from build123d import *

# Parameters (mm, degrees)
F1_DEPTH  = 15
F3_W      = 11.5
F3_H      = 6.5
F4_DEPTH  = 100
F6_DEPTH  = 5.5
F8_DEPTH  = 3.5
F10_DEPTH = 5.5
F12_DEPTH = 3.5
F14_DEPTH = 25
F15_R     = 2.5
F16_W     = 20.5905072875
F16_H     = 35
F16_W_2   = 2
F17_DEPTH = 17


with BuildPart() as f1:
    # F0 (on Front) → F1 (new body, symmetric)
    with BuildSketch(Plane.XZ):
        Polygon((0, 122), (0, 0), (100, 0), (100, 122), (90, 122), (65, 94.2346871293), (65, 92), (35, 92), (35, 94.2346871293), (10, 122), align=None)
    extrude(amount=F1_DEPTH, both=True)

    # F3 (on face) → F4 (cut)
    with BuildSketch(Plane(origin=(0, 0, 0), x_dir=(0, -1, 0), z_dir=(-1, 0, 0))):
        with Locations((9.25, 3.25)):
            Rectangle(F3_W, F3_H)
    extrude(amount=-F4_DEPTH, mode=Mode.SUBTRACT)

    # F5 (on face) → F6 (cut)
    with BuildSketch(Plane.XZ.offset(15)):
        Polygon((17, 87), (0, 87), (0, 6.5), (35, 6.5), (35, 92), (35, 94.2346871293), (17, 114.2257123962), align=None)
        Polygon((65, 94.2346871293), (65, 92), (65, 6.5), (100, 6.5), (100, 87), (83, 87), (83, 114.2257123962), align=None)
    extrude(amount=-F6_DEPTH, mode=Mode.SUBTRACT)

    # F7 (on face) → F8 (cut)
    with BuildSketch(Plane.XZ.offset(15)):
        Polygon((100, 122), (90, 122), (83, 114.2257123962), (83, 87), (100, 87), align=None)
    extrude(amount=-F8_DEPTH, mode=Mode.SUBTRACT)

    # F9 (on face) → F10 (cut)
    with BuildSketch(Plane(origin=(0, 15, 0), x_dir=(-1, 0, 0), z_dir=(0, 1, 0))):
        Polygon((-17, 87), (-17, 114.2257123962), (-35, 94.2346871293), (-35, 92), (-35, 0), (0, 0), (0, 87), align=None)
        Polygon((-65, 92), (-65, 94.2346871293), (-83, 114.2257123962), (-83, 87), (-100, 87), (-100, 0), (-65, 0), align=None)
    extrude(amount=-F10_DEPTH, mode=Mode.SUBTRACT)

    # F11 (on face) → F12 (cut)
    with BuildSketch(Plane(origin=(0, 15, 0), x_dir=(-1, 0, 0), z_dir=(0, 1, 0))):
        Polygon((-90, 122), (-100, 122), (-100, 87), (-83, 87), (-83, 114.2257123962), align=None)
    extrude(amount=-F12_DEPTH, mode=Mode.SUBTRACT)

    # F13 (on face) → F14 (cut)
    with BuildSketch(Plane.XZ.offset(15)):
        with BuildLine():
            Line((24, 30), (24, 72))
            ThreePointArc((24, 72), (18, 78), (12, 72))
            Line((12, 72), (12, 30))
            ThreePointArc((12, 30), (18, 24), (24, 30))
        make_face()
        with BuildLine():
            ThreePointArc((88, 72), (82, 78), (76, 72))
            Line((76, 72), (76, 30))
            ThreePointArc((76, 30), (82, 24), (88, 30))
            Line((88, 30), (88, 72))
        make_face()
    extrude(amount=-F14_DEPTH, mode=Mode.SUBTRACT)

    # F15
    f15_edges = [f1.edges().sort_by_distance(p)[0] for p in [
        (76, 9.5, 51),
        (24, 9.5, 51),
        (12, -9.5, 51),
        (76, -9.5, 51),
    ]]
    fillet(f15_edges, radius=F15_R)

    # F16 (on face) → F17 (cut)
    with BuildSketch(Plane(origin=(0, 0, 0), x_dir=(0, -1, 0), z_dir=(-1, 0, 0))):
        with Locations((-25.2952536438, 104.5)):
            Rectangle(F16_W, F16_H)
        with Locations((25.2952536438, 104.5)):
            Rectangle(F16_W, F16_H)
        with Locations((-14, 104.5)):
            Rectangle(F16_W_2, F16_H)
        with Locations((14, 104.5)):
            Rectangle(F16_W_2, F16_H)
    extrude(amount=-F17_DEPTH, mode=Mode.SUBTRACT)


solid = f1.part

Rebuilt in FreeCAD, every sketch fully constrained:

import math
import FreeCAD as App
import Part
import Sketcher
Q = App.Units.Quantity


def edges_at(feature, points):
    """Names of the edges that pass closest to the given points."""
    edges = feature.Shape.Edges
    near = lambda p: min(range(len(edges)), key=lambda i: edges[i].distToShape(Part.Vertex(*p))[0])
    return sorted({f"Edge{near(p) + 1}" for p in points})

doc = App.newDocument("Part")
body = doc.addObject("PartDesign::Body", "Body")

sketch1 = body.newObject("Sketcher::SketchObject", "Sketch")
sketch1.AttachmentSupport = (doc.getObject("XZ_Plane"), [""])
sketch1.MapMode = "FlatFace"
sketch1.addGeometry(Part.LineSegment(App.Vector(0, 122, 0), App.Vector(0, 0, 0)), False)
sketch1.addGeometry(Part.LineSegment(App.Vector(0, 0, 0), App.Vector(100, 0, 0)), False)
sketch1.addGeometry(Part.LineSegment(App.Vector(100, 0, 0), App.Vector(100, 122, 0)), False)
sketch1.addGeometry(Part.LineSegment(App.Vector(100, 122, 0), App.Vector(90, 122, 0)), False)
sketch1.addGeometry(Part.LineSegment(App.Vector(90, 122, 0), App.Vector(65, 94.234687, 0)), False)
sketch1.addGeometry(Part.LineSegment(App.Vector(65, 94.234687, 0), App.Vector(65, 92, 0)), False)
sketch1.addGeometry(Part.LineSegment(App.Vector(65, 92, 0), App.Vector(35, 92, 0)), False)
sketch1.addGeometry(Part.LineSegment(App.Vector(35, 92, 0), App.Vector(35, 94.234687, 0)), False)
sketch1.addGeometry(Part.LineSegment(App.Vector(35, 94.234687, 0), App.Vector(10, 122, 0)), False)
sketch1.addGeometry(Part.LineSegment(App.Vector(10, 122, 0), App.Vector(0, 122, 0)), False)
sketch1.addConstraint(Sketcher.Constraint("Coincident", 0, 2, 1, 1))
sketch1.addConstraint(Sketcher.Constraint("Coincident", 1, 2, 2, 1))
sketch1.addConstraint(Sketcher.Constraint("Coincident", 2, 2, 3, 1))
sketch1.addConstraint(Sketcher.Constraint("Coincident", 3, 2, 4, 1))
sketch1.addConstraint(Sketcher.Constraint("Coincident", 4, 2, 5, 1))
sketch1.addConstraint(Sketcher.Constraint("Coincident", 5, 2, 6, 1))
sketch1.addConstraint(Sketcher.Constraint("Coincident", 6, 2, 7, 1))
sketch1.addConstraint(Sketcher.Constraint("Coincident", 7, 2, 8, 1))
sketch1.addConstraint(Sketcher.Constraint("Coincident", 8, 2, 9, 1))
sketch1.addConstraint(Sketcher.Constraint("Coincident", 9, 2, 0, 1))
sketch1.addConstraint(Sketcher.Constraint("Vertical", 0))
sketch1.addConstraint(Sketcher.Constraint("Horizontal", 1))
sketch1.addConstraint(Sketcher.Constraint("Vertical", 2))
sketch1.addConstraint(Sketcher.Constraint("Horizontal", 3))
sketch1.addConstraint(Sketcher.Constraint("Vertical", 5))
sketch1.addConstraint(Sketcher.Constraint("Horizontal", 6))
sketch1.addConstraint(Sketcher.Constraint("Vertical", 7))
sketch1.addConstraint(Sketcher.Constraint("Horizontal", 9))
sketch1.addConstraint(Sketcher.Constraint("Coincident", 0, 2, -1, 1))
sketch1.addConstraint(Sketcher.Constraint("Horizontal", 4, 2, 7, 2))
sketch1.addConstraint(Sketcher.Constraint("Horizontal", 3, 2, 8, 2))
sketch1.addConstraint(Sketcher.Constraint("Equal", 3, 9))
sketch1.addConstraint(Sketcher.Constraint("Equal", 4, 8))
sketch1.addConstraint(Sketcher.Constraint("DistanceX", 1, 1, 1, 2, 100.0))
sketch1.addConstraint(Sketcher.Constraint("DistanceX", 3, 2, 3, 1, 10.0))
sketch1.addConstraint(Sketcher.Constraint("DistanceX", 6, 2, 6, 1, 30.0))
sketch1.addConstraint(Sketcher.Constraint("DistanceY", 0, 2, 0, 1, 122.0))
sketch1.addConstraint(Sketcher.Constraint("Angle", 4, Q("-132 deg")))
sketch1.addConstraint(Sketcher.Constraint("DistanceY", -1, 1, 5, 2, 92.0))
pad1 = body.newObject("PartDesign::Pad", "Pad")
pad1.Profile = sketch1
pad1.Length = 30
pad1.Midplane = True

sketch2 = body.newObject("Sketcher::SketchObject", "Sketch001")
sketch2.AttachmentSupport = (doc.getObject("YZ_Plane"), [""])
sketch2.MapMode = "FlatFace"
sketch2.addGeometry(Part.LineSegment(App.Vector(-3.5, 6.5, 0), App.Vector(-3.5, 0, 0)), False)
sketch2.addGeometry(Part.LineSegment(App.Vector(-3.5, 0, 0), App.Vector(-15, 0, 0)), False)
sketch2.addGeometry(Part.LineSegment(App.Vector(-15, 0, 0), App.Vector(-15, 6.5, 0)), False)
sketch2.addGeometry(Part.LineSegment(App.Vector(-15, 6.5, 0), App.Vector(-3.5, 6.5, 0)), False)
sketch2.addConstraint(Sketcher.Constraint("Coincident", 0, 2, 1, 1))
sketch2.addConstraint(Sketcher.Constraint("Coincident", 1, 2, 2, 1))
sketch2.addConstraint(Sketcher.Constraint("Coincident", 2, 2, 3, 1))
sketch2.addConstraint(Sketcher.Constraint("Coincident", 3, 2, 0, 1))
sketch2.addConstraint(Sketcher.Constraint("Vertical", 0))
sketch2.addConstraint(Sketcher.Constraint("Horizontal", 1))
sketch2.addConstraint(Sketcher.Constraint("Vertical", 2))
sketch2.addConstraint(Sketcher.Constraint("Horizontal", 3))
sketch2.addConstraint(Sketcher.Constraint("PointOnObject", 0, 2, -1))
sketch2.addConstraint(Sketcher.Constraint("DistanceX", 1, 2, 1, 1, 11.5))
sketch2.addConstraint(Sketcher.Constraint("DistanceY", 0, 2, 0, 1, 6.5))
sketch2.addConstraint(Sketcher.Constraint("DistanceX", 1, 2, -1, 1, 15.0))
pocket1 = body.newObject("PartDesign::Pocket", "Pocket")
pocket1.Profile = sketch2
pocket1.Length = 100
pocket1.Reversed = True

sketch3 = body.newObject("Sketcher::SketchObject", "Sketch002")
sketch3.AttachmentSupport = (doc.getObject("XZ_Plane"), [""])
sketch3.MapMode = "FlatFace"
sketch3.AttachmentOffset = App.Placement(App.Vector(0, 0, 15), App.Rotation())
sketch3.addGeometry(Part.LineSegment(App.Vector(17, 87, 0), App.Vector(0, 87, 0)), False)
sketch3.addGeometry(Part.LineSegment(App.Vector(0, 87, 0), App.Vector(0, 6.5, 0)), False)
sketch3.addGeometry(Part.LineSegment(App.Vector(0, 6.5, 0), App.Vector(35, 6.5, 0)), False)
sketch3.addGeometry(Part.LineSegment(App.Vector(35, 6.5, 0), App.Vector(35, 94.234687, 0)), False)
sketch3.addGeometry(Part.LineSegment(App.Vector(35, 94.234687, 0), App.Vector(17, 114.225712, 0)), False)
sketch3.addGeometry(Part.LineSegment(App.Vector(17, 114.225712, 0), App.Vector(17, 87, 0)), False)
sketch3.addGeometry(Part.LineSegment(App.Vector(65, 94.234687, 0), App.Vector(65, 6.5, 0)), False)
sketch3.addGeometry(Part.LineSegment(App.Vector(65, 6.5, 0), App.Vector(100, 6.5, 0)), False)
sketch3.addGeometry(Part.LineSegment(App.Vector(100, 6.5, 0), App.Vector(100, 87, 0)), False)
sketch3.addGeometry(Part.LineSegment(App.Vector(100, 87, 0), App.Vector(83, 87, 0)), False)
sketch3.addGeometry(Part.LineSegment(App.Vector(83, 87, 0), App.Vector(83, 114.225712, 0)), False)
sketch3.addGeometry(Part.LineSegment(App.Vector(83, 114.225712, 0), App.Vector(65, 94.234687, 0)), False)
sketch3.addConstraint(Sketcher.Constraint("Coincident", 0, 2, 1, 1))
sketch3.addConstraint(Sketcher.Constraint("Coincident", 1, 2, 2, 1))
sketch3.addConstraint(Sketcher.Constraint("Coincident", 2, 2, 3, 1))
sketch3.addConstraint(Sketcher.Constraint("Coincident", 3, 2, 4, 1))
sketch3.addConstraint(Sketcher.Constraint("Coincident", 4, 2, 5, 1))
sketch3.addConstraint(Sketcher.Constraint("Coincident", 5, 2, 0, 1))
sketch3.addConstraint(Sketcher.Constraint("Coincident", 6, 2, 7, 1))
sketch3.addConstraint(Sketcher.Constraint("Coincident", 7, 2, 8, 1))
sketch3.addConstraint(Sketcher.Constraint("Coincident", 8, 2, 9, 1))
sketch3.addConstraint(Sketcher.Constraint("Coincident", 9, 2, 10, 1))
sketch3.addConstraint(Sketcher.Constraint("Coincident", 10, 2, 11, 1))
sketch3.addConstraint(Sketcher.Constraint("Coincident", 11, 2, 6, 1))
sketch3.addConstraint(Sketcher.Constraint("Horizontal", 0))
sketch3.addConstraint(Sketcher.Constraint("Vertical", 1))
sketch3.addConstraint(Sketcher.Constraint("Horizontal", 2))
sketch3.addConstraint(Sketcher.Constraint("Vertical", 3))
sketch3.addConstraint(Sketcher.Constraint("Vertical", 5))
sketch3.addConstraint(Sketcher.Constraint("Vertical", 6))
sketch3.addConstraint(Sketcher.Constraint("Horizontal", 7))
sketch3.addConstraint(Sketcher.Constraint("Vertical", 8))
sketch3.addConstraint(Sketcher.Constraint("Horizontal", 9))
sketch3.addConstraint(Sketcher.Constraint("Vertical", 10))
sketch3.addConstraint(Sketcher.Constraint("PointOnObject", 0, 2, -2))
sketch3.addConstraint(Sketcher.Constraint("Horizontal", 2, 2, 6, 2))
sketch3.addConstraint(Sketcher.Constraint("Horizontal", 5, 2, 8, 2))
sketch3.addConstraint(Sketcher.Constraint("Horizontal", 4, 2, 10, 2))
sketch3.addConstraint(Sketcher.Constraint("Horizontal", 3, 2, 11, 2))
sketch3.addConstraint(Sketcher.Constraint("Equal", 2, 7))
sketch3.addConstraint(Sketcher.Constraint("Equal", 0, 9))
sketch3.addConstraint(Sketcher.Constraint("DistanceX", 0, 2, 0, 1, 17.0))
sketch3.addConstraint(Sketcher.Constraint("DistanceX", 2, 1, 2, 2, 35.0))
sketch3.addConstraint(Sketcher.Constraint("Angle", 4, Q("132 deg")))
sketch3.addConstraint(Sketcher.Constraint("DistanceY", 1, 2, 1, 1, 80.5))
sketch3.addConstraint(Sketcher.Constraint("DistanceY", -1, 1, 0, 2, 87.0))
sketch3.addConstraint(Sketcher.Constraint("DistanceX", -1, 1, 6, 2, 65.0))
sketch3.addConstraint(Sketcher.Constraint("DistanceY", 3, 1, 3, 2, 87.734687))
pocket2 = body.newObject("PartDesign::Pocket", "Pocket001")
pocket2.Profile = sketch3
pocket2.Length = 5.5

sketch4 = body.newObject("Sketcher::SketchObject", "Sketch003")
sketch4.AttachmentSupport = (doc.getObject("XZ_Plane"), [""])
sketch4.MapMode = "FlatFace"
sketch4.AttachmentOffset = App.Placement(App.Vector(0, 0, 15), App.Rotation())
sketch4.addGeometry(Part.LineSegment(App.Vector(100, 122, 0), App.Vector(90, 122, 0)), False)
sketch4.addGeometry(Part.LineSegment(App.Vector(90, 122, 0), App.Vector(83, 114.225712, 0)), False)
sketch4.addGeometry(Part.LineSegment(App.Vector(83, 114.225712, 0), App.Vector(83, 87, 0)), False)
sketch4.addGeometry(Part.LineSegment(App.Vector(83, 87, 0), App.Vector(100, 87, 0)), False)
sketch4.addGeometry(Part.LineSegment(App.Vector(100, 87, 0), App.Vector(100, 122, 0)), False)
sketch4.addConstraint(Sketcher.Constraint("Coincident", 0, 2, 1, 1))
sketch4.addConstraint(Sketcher.Constraint("Coincident", 1, 2, 2, 1))
sketch4.addConstraint(Sketcher.Constraint("Coincident", 2, 2, 3, 1))
sketch4.addConstraint(Sketcher.Constraint("Coincident", 3, 2, 4, 1))
sketch4.addConstraint(Sketcher.Constraint("Coincident", 4, 2, 0, 1))
sketch4.addConstraint(Sketcher.Constraint("Horizontal", 0))
sketch4.addConstraint(Sketcher.Constraint("Vertical", 2))
sketch4.addConstraint(Sketcher.Constraint("Horizontal", 3))
sketch4.addConstraint(Sketcher.Constraint("Vertical", 4))
sketch4.addConstraint(Sketcher.Constraint("DistanceX", 0, 2, 0, 1, 10.0))
sketch4.addConstraint(Sketcher.Constraint("DistanceX", 3, 1, 3, 2, 17.0))
sketch4.addConstraint(Sketcher.Constraint("DistanceY", 4, 1, 4, 2, 35.0))
sketch4.addConstraint(Sketcher.Constraint("Angle", 1, Q("-132 deg")))
sketch4.addConstraint(Sketcher.Constraint("DistanceX", -1, 1, 0, 2, 90.0))
sketch4.addConstraint(Sketcher.Constraint("DistanceY", -1, 1, 0, 2, 122.0))
pocket3 = body.newObject("PartDesign::Pocket", "Pocket002")
pocket3.Profile = sketch4
pocket3.Length = 3.5

sketch5 = body.newObject("Sketcher::SketchObject", "Sketch004")
sketch5.AttachmentSupport = (doc.getObject("XZ_Plane"), [""])
sketch5.MapMode = "FlatFace"
sketch5.AttachmentOffset = App.Placement(App.Vector(0, 0, -15), App.Rotation())
sketch5.addGeometry(Part.LineSegment(App.Vector(17, 87, 0), App.Vector(17, 114.225712, 0)), False)
sketch5.addGeometry(Part.LineSegment(App.Vector(17, 114.225712, 0), App.Vector(35, 94.234687, 0)), False)
sketch5.addGeometry(Part.LineSegment(App.Vector(35, 94.234687, 0), App.Vector(35, 0, 0)), False)
sketch5.addGeometry(Part.LineSegment(App.Vector(35, 0, 0), App.Vector(0, 0, 0)), False)
sketch5.addGeometry(Part.LineSegment(App.Vector(0, 0, 0), App.Vector(0, 87, 0)), False)
sketch5.addGeometry(Part.LineSegment(App.Vector(0, 87, 0), App.Vector(17, 87, 0)), False)
sketch5.addGeometry(Part.LineSegment(App.Vector(65, 94.234687, 0), App.Vector(83, 114.225712, 0)), False)
sketch5.addGeometry(Part.LineSegment(App.Vector(83, 114.225712, 0), App.Vector(83, 87, 0)), False)
sketch5.addGeometry(Part.LineSegment(App.Vector(83, 87, 0), App.Vector(100, 87, 0)), False)
sketch5.addGeometry(Part.LineSegment(App.Vector(100, 87, 0), App.Vector(100, 0, 0)), False)
sketch5.addGeometry(Part.LineSegment(App.Vector(100, 0, 0), App.Vector(65, 0, 0)), False)
sketch5.addGeometry(Part.LineSegment(App.Vector(65, 0, 0), App.Vector(65, 94.234687, 0)), False)
sketch5.addConstraint(Sketcher.Constraint("Coincident", 0, 2, 1, 1))
sketch5.addConstraint(Sketcher.Constraint("Coincident", 1, 2, 2, 1))
sketch5.addConstraint(Sketcher.Constraint("Coincident", 2, 2, 3, 1))
sketch5.addConstraint(Sketcher.Constraint("Coincident", 3, 2, 4, 1))
sketch5.addConstraint(Sketcher.Constraint("Coincident", 4, 2, 5, 1))
sketch5.addConstraint(Sketcher.Constraint("Coincident", 5, 2, 0, 1))
sketch5.addConstraint(Sketcher.Constraint("Coincident", 6, 2, 7, 1))
sketch5.addConstraint(Sketcher.Constraint("Coincident", 7, 2, 8, 1))
sketch5.addConstraint(Sketcher.Constraint("Coincident", 8, 2, 9, 1))
sketch5.addConstraint(Sketcher.Constraint("Coincident", 9, 2, 10, 1))
sketch5.addConstraint(Sketcher.Constraint("Coincident", 10, 2, 11, 1))
sketch5.addConstraint(Sketcher.Constraint("Coincident", 11, 2, 6, 1))
sketch5.addConstraint(Sketcher.Constraint("Vertical", 0))
sketch5.addConstraint(Sketcher.Constraint("Vertical", 2))
sketch5.addConstraint(Sketcher.Constraint("Horizontal", 3))
sketch5.addConstraint(Sketcher.Constraint("Vertical", 4))
sketch5.addConstraint(Sketcher.Constraint("Horizontal", 5))
sketch5.addConstraint(Sketcher.Constraint("Vertical", 7))
sketch5.addConstraint(Sketcher.Constraint("Horizontal", 8))
sketch5.addConstraint(Sketcher.Constraint("Vertical", 9))
sketch5.addConstraint(Sketcher.Constraint("Horizontal", 10))
sketch5.addConstraint(Sketcher.Constraint("Vertical", 11))
sketch5.addConstraint(Sketcher.Constraint("Coincident", 3, 2, -1, 1))
sketch5.addConstraint(Sketcher.Constraint("PointOnObject", 9, 2, -1))
sketch5.addConstraint(Sketcher.Constraint("Horizontal", 0, 2, 6, 2))
sketch5.addConstraint(Sketcher.Constraint("Horizontal", 5, 2, 7, 2))
sketch5.addConstraint(Sketcher.Constraint("Horizontal", 1, 2, 11, 2))
sketch5.addConstraint(Sketcher.Constraint("Equal", 5, 8))
sketch5.addConstraint(Sketcher.Constraint("Equal", 3, 10))
sketch5.addConstraint(Sketcher.Constraint("DistanceX", 3, 2, 3, 1, 35.0))
sketch5.addConstraint(Sketcher.Constraint("DistanceX", 5, 1, 5, 2, 17.0))
sketch5.addConstraint(Sketcher.Constraint("DistanceY", 4, 1, 4, 2, 87.0))
sketch5.addConstraint(Sketcher.Constraint("Angle", 1, Q("-48 deg")))
sketch5.addConstraint(Sketcher.Constraint("DistanceX", -1, 1, 6, 2, 83.0))
sketch5.addConstraint(Sketcher.Constraint("DistanceY", 0, 1, 0, 2, 27.225712))
pocket4 = body.newObject("PartDesign::Pocket", "Pocket003")
pocket4.Profile = sketch5
pocket4.Length = 5.5
pocket4.Reversed = True

sketch6 = body.newObject("Sketcher::SketchObject", "Sketch005")
sketch6.AttachmentSupport = (doc.getObject("XZ_Plane"), [""])
sketch6.MapMode = "FlatFace"
sketch6.AttachmentOffset = App.Placement(App.Vector(0, 0, -15), App.Rotation())
sketch6.addGeometry(Part.LineSegment(App.Vector(90, 122, 0), App.Vector(100, 122, 0)), False)
sketch6.addGeometry(Part.LineSegment(App.Vector(100, 122, 0), App.Vector(100, 87, 0)), False)
sketch6.addGeometry(Part.LineSegment(App.Vector(100, 87, 0), App.Vector(83, 87, 0)), False)
sketch6.addGeometry(Part.LineSegment(App.Vector(83, 87, 0), App.Vector(83, 114.225712, 0)), False)
sketch6.addGeometry(Part.LineSegment(App.Vector(83, 114.225712, 0), App.Vector(90, 122, 0)), False)
sketch6.addConstraint(Sketcher.Constraint("Coincident", 0, 2, 1, 1))
sketch6.addConstraint(Sketcher.Constraint("Coincident", 1, 2, 2, 1))
sketch6.addConstraint(Sketcher.Constraint("Coincident", 2, 2, 3, 1))
sketch6.addConstraint(Sketcher.Constraint("Coincident", 3, 2, 4, 1))
sketch6.addConstraint(Sketcher.Constraint("Coincident", 4, 2, 0, 1))
sketch6.addConstraint(Sketcher.Constraint("Horizontal", 0))
sketch6.addConstraint(Sketcher.Constraint("Vertical", 1))
sketch6.addConstraint(Sketcher.Constraint("Horizontal", 2))
sketch6.addConstraint(Sketcher.Constraint("Vertical", 3))
sketch6.addConstraint(Sketcher.Constraint("DistanceX", 0, 1, 0, 2, 10.0))
sketch6.addConstraint(Sketcher.Constraint("DistanceX", 2, 2, 2, 1, 17.0))
sketch6.addConstraint(Sketcher.Constraint("DistanceY", 1, 2, 1, 1, 35.0))
sketch6.addConstraint(Sketcher.Constraint("Angle", 4, Q("48 deg")))
sketch6.addConstraint(Sketcher.Constraint("DistanceX", -1, 1, 0, 2, 100.0))
sketch6.addConstraint(Sketcher.Constraint("DistanceY", -1, 1, 0, 2, 122.0))
pocket5 = body.newObject("PartDesign::Pocket", "Pocket004")
pocket5.Profile = sketch6
pocket5.Length = 3.5
pocket5.Reversed = True

sketch7 = body.newObject("Sketcher::SketchObject", "Sketch006")
sketch7.AttachmentSupport = (doc.getObject("XZ_Plane"), [""])
sketch7.MapMode = "FlatFace"
sketch7.AttachmentOffset = App.Placement(App.Vector(0, 0, 15), App.Rotation())
sketch7.addGeometry(Part.LineSegment(App.Vector(24, 30, 0), App.Vector(24, 72, 0)), False)
sketch7.addGeometry(Part.ArcOfCircle(Part.Circle(App.Vector(18, 72, 0), App.Vector(0, 0, 1), 6), math.radians(0), math.radians(180)), False)
sketch7.addGeometry(Part.LineSegment(App.Vector(12, 72, 0), App.Vector(12, 30, 0)), False)
sketch7.addGeometry(Part.ArcOfCircle(Part.Circle(App.Vector(18, 30, 0), App.Vector(0, 0, 1), 6), math.radians(180), math.radians(360)), False)
sketch7.addGeometry(Part.ArcOfCircle(Part.Circle(App.Vector(82, 72, 0), App.Vector(0, 0, 1), 6), math.radians(0), math.radians(180)), False)
sketch7.addGeometry(Part.LineSegment(App.Vector(76, 72, 0), App.Vector(76, 30, 0)), False)
sketch7.addGeometry(Part.ArcOfCircle(Part.Circle(App.Vector(82, 30, 0), App.Vector(0, 0, 1), 6), math.radians(180), math.radians(360)), False)
sketch7.addGeometry(Part.LineSegment(App.Vector(88, 30, 0), App.Vector(88, 72, 0)), False)
sketch7.addConstraint(Sketcher.Constraint("Tangent", 0, 2, 1, 1))
sketch7.addConstraint(Sketcher.Constraint("Tangent", 1, 2, 2, 1))
sketch7.addConstraint(Sketcher.Constraint("Tangent", 2, 2, 3, 1))
sketch7.addConstraint(Sketcher.Constraint("Tangent", 3, 2, 0, 1))
sketch7.addConstraint(Sketcher.Constraint("Tangent", 4, 2, 5, 1))
sketch7.addConstraint(Sketcher.Constraint("Tangent", 5, 2, 6, 1))
sketch7.addConstraint(Sketcher.Constraint("Tangent", 6, 2, 7, 1))
sketch7.addConstraint(Sketcher.Constraint("Tangent", 7, 2, 4, 1))
sketch7.addConstraint(Sketcher.Constraint("Vertical", 0))
sketch7.addConstraint(Sketcher.Constraint("Vertical", 2))
sketch7.addConstraint(Sketcher.Constraint("Vertical", 5))
sketch7.addConstraint(Sketcher.Constraint("Vertical", 7))
sketch7.addConstraint(Sketcher.Constraint("Equal", 3, 4))
sketch7.addConstraint(Sketcher.Constraint("Horizontal", 1, 3, 4, 3))
sketch7.addConstraint(Sketcher.Constraint("Horizontal", 3, 3, 6, 3))
sketch7.addConstraint(Sketcher.Constraint("Radius", 1, 6.0))
sketch7.addConstraint(Sketcher.Constraint("DistanceY", 0, 1, 0, 2, 42.0))
sketch7.addConstraint(Sketcher.Constraint("DistanceX", -1, 1, 1, 3, 18.0))
sketch7.addConstraint(Sketcher.Constraint("DistanceY", -1, 1, 1, 3, 72.0))
sketch7.addConstraint(Sketcher.Constraint("DistanceX", -1, 1, 4, 3, 82.0))
pocket6 = body.newObject("PartDesign::Pocket", "Pocket005")
pocket6.Profile = sketch7
pocket6.Length = 25
doc.recompute()

fillet = body.newObject("PartDesign::Fillet", "Fillet")
fillet.Base = (pocket6, edges_at(pocket6, [
    (76, 9.5, 51),
    (24, 9.5, 51),
    (12, -9.5, 51),
    (76, -9.5, 51),
]))
fillet.Radius = 2.5

sketch8 = body.newObject("Sketcher::SketchObject", "Sketch007")
sketch8.AttachmentSupport = (doc.getObject("YZ_Plane"), [""])
sketch8.MapMode = "FlatFace"
sketch8.addGeometry(Part.LineSegment(App.Vector(35.590507, 122, 0), App.Vector(35.590507, 87, 0)), False)
sketch8.addGeometry(Part.LineSegment(App.Vector(35.590507, 87, 0), App.Vector(13, 87, 0)), False)
sketch8.addGeometry(Part.LineSegment(App.Vector(13, 87, 0), App.Vector(13, 122, 0)), False)
sketch8.addGeometry(Part.LineSegment(App.Vector(13, 122, 0), App.Vector(35.590507, 122, 0)), False)
sketch8.addGeometry(Part.LineSegment(App.Vector(-35.590507, 87, 0), App.Vector(-35.590507, 122, 0)), False)
sketch8.addGeometry(Part.LineSegment(App.Vector(-35.590507, 122, 0), App.Vector(-13, 122, 0)), False)
sketch8.addGeometry(Part.LineSegment(App.Vector(-13, 122, 0), App.Vector(-13, 87, 0)), False)
sketch8.addGeometry(Part.LineSegment(App.Vector(-13, 87, 0), App.Vector(-35.590507, 87, 0)), False)
sketch8.addConstraint(Sketcher.Constraint("Coincident", 0, 2, 1, 1))
sketch8.addConstraint(Sketcher.Constraint("Coincident", 1, 2, 2, 1))
sketch8.addConstraint(Sketcher.Constraint("Coincident", 2, 2, 3, 1))
sketch8.addConstraint(Sketcher.Constraint("Coincident", 3, 2, 0, 1))
sketch8.addConstraint(Sketcher.Constraint("Coincident", 4, 2, 5, 1))
sketch8.addConstraint(Sketcher.Constraint("Coincident", 5, 2, 6, 1))
sketch8.addConstraint(Sketcher.Constraint("Coincident", 6, 2, 7, 1))
sketch8.addConstraint(Sketcher.Constraint("Coincident", 7, 2, 4, 1))
sketch8.addConstraint(Sketcher.Constraint("Vertical", 0))
sketch8.addConstraint(Sketcher.Constraint("Horizontal", 1))
sketch8.addConstraint(Sketcher.Constraint("Vertical", 2))
sketch8.addConstraint(Sketcher.Constraint("Horizontal", 3))
sketch8.addConstraint(Sketcher.Constraint("Vertical", 4))
sketch8.addConstraint(Sketcher.Constraint("Horizontal", 5))
sketch8.addConstraint(Sketcher.Constraint("Vertical", 6))
sketch8.addConstraint(Sketcher.Constraint("Horizontal", 7))
sketch8.addConstraint(Sketcher.Constraint("Symmetric", 3, 2, 4, 2, -2))
sketch8.addConstraint(Sketcher.Constraint("Symmetric", 1, 2, 6, 2, -2))
sketch8.addConstraint(Sketcher.Constraint("DistanceY", 0, 2, 0, 1, 35.0))
sketch8.addConstraint(Sketcher.Constraint("DistanceY", -1, 1, 0, 2, 87.0))
sketch8.addConstraint(Sketcher.Constraint("DistanceX", -1, 1, 1, 2, 13.0))
sketch8.addConstraint(Sketcher.Constraint("DistanceX", 1, 2, 1, 1, 22.590507))
pocket7 = body.newObject("PartDesign::Pocket", "Pocket006")
pocket7.Profile = sketch8
pocket7.Length = 17
pocket7.Reversed = True

doc.recompute()
